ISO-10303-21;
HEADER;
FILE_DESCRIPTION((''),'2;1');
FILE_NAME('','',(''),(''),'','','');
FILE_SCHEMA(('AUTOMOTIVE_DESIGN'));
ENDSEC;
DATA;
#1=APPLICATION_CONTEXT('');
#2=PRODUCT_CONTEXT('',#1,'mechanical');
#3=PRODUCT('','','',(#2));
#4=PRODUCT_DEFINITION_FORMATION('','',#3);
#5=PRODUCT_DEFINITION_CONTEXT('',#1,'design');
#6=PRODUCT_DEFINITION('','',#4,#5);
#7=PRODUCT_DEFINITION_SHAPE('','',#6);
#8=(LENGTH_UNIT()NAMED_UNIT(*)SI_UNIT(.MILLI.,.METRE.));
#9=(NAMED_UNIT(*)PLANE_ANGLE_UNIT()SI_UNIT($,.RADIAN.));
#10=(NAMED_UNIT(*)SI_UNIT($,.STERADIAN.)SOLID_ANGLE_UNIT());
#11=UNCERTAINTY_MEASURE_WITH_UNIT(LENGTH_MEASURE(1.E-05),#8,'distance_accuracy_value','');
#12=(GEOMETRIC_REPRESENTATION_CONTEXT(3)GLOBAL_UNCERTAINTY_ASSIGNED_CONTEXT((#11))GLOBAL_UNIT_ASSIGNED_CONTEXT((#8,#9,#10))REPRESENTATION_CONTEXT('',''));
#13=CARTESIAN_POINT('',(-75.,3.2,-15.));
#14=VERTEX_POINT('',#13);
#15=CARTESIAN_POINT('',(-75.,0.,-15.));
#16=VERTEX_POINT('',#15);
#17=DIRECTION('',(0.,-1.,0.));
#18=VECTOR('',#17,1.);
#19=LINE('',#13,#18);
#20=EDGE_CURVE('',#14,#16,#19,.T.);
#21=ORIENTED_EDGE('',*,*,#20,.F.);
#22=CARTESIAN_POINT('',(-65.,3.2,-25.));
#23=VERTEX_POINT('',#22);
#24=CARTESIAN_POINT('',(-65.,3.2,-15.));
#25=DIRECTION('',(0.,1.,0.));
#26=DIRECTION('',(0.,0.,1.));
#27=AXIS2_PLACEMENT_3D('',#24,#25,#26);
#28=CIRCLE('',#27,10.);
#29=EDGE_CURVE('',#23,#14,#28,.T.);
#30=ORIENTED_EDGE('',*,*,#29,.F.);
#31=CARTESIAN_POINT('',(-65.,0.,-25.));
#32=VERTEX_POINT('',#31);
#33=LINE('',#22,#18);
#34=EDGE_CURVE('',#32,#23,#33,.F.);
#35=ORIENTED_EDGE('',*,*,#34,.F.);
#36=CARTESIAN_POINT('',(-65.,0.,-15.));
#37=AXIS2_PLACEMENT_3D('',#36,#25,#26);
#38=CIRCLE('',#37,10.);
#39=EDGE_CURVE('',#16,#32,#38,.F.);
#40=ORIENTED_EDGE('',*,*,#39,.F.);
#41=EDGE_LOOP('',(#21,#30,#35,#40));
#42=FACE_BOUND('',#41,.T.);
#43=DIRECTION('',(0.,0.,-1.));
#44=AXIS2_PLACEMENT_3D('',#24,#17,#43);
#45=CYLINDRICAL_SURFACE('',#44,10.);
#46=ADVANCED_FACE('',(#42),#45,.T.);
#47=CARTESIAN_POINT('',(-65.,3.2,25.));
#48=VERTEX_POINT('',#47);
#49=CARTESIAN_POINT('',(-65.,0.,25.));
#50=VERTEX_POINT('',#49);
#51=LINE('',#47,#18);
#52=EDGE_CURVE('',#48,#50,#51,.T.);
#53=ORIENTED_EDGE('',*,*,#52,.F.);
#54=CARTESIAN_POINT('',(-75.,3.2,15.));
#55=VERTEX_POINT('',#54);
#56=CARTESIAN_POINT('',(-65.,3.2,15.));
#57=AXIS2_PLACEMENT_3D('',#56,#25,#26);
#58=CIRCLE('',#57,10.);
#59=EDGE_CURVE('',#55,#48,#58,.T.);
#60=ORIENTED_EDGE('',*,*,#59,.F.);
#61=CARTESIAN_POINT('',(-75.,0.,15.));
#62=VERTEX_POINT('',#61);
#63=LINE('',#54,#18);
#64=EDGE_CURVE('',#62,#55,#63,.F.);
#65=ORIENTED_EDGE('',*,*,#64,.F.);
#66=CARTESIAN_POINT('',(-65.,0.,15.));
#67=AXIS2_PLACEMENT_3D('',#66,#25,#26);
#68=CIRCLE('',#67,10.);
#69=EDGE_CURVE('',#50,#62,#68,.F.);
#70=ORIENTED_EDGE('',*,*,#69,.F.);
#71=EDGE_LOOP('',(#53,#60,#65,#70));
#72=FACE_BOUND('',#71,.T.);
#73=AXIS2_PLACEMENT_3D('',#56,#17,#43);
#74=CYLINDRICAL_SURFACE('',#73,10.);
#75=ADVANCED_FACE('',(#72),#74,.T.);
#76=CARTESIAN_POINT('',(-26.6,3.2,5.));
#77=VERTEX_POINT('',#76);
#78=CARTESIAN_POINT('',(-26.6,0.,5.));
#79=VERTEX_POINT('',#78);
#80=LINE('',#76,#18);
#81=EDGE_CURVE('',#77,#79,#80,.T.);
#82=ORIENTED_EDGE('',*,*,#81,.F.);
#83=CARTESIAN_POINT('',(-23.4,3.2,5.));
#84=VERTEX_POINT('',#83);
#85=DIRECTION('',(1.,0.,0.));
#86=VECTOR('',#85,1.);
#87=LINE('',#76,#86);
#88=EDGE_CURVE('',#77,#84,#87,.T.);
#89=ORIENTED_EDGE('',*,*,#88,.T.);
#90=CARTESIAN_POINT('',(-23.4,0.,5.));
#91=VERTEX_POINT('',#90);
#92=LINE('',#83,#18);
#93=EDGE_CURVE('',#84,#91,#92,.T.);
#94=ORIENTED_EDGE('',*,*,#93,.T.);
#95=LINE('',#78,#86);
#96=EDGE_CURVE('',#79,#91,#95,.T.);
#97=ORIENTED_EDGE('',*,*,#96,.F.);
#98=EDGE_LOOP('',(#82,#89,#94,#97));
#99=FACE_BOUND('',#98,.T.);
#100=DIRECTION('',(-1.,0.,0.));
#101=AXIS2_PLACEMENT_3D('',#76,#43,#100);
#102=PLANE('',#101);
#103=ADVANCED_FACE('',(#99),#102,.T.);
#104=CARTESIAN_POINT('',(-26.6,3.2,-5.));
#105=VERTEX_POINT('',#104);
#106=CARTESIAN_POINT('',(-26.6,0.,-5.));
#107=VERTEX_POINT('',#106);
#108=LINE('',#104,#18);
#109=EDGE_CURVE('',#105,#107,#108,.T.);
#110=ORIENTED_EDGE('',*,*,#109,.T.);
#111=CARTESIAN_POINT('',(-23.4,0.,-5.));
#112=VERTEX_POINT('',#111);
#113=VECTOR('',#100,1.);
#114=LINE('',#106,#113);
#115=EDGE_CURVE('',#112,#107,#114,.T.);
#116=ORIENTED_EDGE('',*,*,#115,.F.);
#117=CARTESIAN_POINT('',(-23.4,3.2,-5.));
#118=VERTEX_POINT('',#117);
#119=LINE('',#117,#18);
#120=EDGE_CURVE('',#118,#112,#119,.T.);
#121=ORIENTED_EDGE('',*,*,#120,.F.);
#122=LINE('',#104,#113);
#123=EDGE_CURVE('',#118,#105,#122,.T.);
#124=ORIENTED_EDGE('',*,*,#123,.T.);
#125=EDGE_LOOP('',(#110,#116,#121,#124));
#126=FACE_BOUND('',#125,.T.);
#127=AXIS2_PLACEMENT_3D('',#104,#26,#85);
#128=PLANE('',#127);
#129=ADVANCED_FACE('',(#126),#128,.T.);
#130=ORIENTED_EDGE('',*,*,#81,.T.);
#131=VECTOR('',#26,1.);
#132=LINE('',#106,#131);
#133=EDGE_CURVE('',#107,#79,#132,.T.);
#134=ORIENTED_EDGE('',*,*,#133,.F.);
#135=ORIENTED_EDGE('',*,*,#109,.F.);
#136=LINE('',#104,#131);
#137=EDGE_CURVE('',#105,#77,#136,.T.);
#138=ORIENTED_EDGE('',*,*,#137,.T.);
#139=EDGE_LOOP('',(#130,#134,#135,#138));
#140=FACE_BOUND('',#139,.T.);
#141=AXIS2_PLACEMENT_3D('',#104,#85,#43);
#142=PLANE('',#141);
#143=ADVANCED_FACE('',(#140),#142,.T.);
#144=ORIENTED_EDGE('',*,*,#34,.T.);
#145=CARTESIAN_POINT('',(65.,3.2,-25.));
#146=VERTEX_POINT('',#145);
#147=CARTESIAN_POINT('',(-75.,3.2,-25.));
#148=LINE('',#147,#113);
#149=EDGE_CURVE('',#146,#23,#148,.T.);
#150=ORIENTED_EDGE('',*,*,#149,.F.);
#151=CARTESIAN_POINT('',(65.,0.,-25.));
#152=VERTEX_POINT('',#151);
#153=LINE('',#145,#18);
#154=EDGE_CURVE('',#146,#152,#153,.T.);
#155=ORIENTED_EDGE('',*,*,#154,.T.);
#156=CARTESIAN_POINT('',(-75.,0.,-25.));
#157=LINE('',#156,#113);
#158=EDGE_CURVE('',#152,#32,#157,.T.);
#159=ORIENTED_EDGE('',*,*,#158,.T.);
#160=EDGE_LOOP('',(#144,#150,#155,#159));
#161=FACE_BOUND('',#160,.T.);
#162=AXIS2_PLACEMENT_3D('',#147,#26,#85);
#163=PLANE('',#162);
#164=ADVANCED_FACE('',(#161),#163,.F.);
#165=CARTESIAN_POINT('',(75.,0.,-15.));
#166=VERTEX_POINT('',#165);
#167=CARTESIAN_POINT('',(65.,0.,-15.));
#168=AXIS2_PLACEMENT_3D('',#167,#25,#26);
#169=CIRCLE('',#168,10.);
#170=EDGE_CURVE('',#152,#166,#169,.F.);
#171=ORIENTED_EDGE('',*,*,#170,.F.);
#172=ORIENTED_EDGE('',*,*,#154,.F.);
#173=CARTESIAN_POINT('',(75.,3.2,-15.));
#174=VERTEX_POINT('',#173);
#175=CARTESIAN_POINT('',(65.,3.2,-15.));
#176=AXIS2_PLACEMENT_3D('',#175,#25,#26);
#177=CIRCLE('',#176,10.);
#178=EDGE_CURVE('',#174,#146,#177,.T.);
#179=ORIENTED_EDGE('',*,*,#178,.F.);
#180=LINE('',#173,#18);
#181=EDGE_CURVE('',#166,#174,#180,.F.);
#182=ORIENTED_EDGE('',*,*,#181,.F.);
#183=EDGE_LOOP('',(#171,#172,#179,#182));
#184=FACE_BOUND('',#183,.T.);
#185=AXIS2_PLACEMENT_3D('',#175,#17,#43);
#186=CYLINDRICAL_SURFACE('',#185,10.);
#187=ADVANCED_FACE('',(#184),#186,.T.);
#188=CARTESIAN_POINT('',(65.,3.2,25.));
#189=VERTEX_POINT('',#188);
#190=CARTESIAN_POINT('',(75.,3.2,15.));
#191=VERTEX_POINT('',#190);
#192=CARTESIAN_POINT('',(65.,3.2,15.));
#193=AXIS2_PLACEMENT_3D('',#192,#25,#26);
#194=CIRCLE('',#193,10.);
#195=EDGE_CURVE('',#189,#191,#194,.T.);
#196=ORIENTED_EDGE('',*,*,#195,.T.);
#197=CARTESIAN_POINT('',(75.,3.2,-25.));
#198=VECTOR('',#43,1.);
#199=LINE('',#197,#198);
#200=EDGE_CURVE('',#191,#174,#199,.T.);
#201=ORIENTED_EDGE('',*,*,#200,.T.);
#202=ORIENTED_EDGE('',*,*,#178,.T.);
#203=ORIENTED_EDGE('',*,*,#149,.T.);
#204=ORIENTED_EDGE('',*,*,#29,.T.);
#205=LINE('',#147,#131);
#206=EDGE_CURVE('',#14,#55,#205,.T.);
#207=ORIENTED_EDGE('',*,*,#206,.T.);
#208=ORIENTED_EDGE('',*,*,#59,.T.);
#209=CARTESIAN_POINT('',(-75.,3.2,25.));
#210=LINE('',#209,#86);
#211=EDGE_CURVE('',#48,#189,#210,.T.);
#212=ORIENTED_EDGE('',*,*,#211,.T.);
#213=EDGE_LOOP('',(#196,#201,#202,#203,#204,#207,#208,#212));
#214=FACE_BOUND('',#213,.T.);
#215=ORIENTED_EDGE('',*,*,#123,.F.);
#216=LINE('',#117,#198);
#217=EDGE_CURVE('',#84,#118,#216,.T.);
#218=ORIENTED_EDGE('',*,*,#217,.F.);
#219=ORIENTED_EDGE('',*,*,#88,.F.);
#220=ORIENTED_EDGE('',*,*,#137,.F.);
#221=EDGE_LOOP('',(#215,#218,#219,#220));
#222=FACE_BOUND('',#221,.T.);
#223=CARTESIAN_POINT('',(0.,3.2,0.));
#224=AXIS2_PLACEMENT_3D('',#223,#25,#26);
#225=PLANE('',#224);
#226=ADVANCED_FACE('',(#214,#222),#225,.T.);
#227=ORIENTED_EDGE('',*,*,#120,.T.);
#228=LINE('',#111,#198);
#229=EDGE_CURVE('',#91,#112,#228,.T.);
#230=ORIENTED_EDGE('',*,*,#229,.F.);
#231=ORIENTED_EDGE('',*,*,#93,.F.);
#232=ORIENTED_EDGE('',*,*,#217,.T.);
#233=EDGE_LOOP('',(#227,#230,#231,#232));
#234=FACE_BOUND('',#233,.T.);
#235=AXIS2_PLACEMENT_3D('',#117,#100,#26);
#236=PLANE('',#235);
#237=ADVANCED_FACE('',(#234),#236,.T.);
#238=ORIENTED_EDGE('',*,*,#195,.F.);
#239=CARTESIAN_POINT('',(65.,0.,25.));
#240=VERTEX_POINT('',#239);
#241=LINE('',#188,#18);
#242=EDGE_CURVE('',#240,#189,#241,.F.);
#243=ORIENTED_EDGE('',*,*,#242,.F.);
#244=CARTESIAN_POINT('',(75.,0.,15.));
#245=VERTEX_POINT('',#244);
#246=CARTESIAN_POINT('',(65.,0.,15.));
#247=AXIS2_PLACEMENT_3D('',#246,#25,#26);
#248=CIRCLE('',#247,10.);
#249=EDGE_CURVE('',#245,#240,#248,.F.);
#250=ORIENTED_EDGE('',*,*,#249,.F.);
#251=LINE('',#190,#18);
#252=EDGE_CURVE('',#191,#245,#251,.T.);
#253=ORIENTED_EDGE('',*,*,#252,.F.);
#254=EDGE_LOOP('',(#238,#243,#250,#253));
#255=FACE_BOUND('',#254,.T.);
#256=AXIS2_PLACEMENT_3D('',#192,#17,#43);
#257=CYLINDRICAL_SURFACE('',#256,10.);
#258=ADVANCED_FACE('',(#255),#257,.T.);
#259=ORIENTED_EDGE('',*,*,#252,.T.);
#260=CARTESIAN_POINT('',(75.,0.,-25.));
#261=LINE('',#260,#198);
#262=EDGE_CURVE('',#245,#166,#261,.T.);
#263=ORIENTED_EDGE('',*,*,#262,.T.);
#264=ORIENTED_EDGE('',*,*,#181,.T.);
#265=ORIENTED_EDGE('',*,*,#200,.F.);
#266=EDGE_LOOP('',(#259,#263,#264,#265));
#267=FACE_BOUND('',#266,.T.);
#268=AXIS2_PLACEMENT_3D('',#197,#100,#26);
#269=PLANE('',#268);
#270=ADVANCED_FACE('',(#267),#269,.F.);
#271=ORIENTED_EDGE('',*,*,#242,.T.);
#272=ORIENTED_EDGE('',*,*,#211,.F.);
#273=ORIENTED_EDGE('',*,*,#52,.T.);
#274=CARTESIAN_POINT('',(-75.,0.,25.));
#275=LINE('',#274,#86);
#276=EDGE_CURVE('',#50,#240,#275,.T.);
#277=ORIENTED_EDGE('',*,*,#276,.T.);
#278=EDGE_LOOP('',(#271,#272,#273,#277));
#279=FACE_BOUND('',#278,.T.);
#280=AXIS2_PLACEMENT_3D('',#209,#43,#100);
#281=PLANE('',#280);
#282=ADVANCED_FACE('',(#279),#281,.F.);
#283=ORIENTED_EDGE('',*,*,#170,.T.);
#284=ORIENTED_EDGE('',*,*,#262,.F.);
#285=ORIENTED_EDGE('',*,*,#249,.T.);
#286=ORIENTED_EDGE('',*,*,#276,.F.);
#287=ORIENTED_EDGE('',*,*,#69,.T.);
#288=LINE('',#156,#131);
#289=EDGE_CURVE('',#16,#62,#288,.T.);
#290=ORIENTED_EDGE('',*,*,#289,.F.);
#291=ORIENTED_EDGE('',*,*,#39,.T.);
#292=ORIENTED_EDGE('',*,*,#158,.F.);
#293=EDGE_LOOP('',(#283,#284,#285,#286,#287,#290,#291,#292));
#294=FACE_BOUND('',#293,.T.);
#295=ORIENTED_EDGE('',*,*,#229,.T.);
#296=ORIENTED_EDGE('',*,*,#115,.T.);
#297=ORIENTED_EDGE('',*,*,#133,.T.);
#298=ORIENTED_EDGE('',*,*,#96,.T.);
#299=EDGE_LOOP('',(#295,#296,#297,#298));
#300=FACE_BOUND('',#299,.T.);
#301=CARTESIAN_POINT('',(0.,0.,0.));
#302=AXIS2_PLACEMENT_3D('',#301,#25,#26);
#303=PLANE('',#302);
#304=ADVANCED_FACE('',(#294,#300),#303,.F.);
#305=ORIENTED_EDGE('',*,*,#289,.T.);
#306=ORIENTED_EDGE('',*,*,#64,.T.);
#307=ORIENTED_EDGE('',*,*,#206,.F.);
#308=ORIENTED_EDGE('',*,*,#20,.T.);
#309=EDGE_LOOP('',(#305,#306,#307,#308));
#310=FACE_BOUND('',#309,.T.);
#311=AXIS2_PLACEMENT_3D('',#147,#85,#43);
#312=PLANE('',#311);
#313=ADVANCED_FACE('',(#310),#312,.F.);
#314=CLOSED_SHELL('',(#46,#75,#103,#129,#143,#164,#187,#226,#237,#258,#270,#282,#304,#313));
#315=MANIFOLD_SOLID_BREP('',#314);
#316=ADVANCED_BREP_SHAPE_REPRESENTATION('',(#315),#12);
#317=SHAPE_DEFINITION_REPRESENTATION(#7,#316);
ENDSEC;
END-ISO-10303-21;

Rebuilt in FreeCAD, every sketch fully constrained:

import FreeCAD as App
import Part
import Sketcher
from FreeCAD import Vector


def edges_at(feature, points):
    """Names of the edges that pass closest to the given points."""
    edges = feature.Shape.Edges
    near = lambda p: min(range(len(edges)), key=lambda i: edges[i].distToShape(Part.Vertex(*p))[0])
    return sorted({f"Edge{near(p) + 1}" for p in points})

doc = App.newDocument("Part")
body = doc.addObject("PartDesign::Body", "Body")

# Sketch on XZ plane
sketch1 = doc.addObject("Sketcher::SketchObject", "Sketch")
body.addObject(sketch1)
sketch1.AttachmentSupport = (doc.XZ_Plane, [""])
sketch1.MapMode = "FlatFace"
sketch1.addGeometry([
    Part.LineSegment(Vector(-75, -25, 0), Vector(-75, 25, 0)),  # 0
    Part.LineSegment(Vector(-75, 25, 0), Vector(75, 25, 0)),  # 1
    Part.LineSegment(Vector(75, 25, 0), Vector(75, -25, 0)),  # 2
    Part.LineSegment(Vector(75, -25, 0), Vector(-75, -25, 0)),  # 3
    Part.LineSegment(Vector(-23.4, 5, 0), Vector(-26.6, 5, 0)),  # 4
    Part.LineSegment(Vector(-26.6, 5, 0), Vector(-26.6, -5, 0)),  # 5
    Part.LineSegment(Vector(-26.6, -5, 0), Vector(-23.4, -5, 0)),  # 6
    Part.LineSegment(Vector(-23.4, -5, 0), Vector(-23.4, 5, 0)),  # 7
], False)
sketch1.addConstraint([
    Sketcher.Constraint("Coincident", 0, 2, 1, 1),
    Sketcher.Constraint("Coincident", 1, 2, 2, 1),
    Sketcher.Constraint("Coincident", 2, 2, 3, 1),
    Sketcher.Constraint("Coincident", 3, 2, 0, 1),
    Sketcher.Constraint("Coincident", 4, 2, 5, 1),
    Sketcher.Constraint("Coincident", 5, 2, 6, 1),
    Sketcher.Constraint("Coincident", 6, 2, 7, 1),
    Sketcher.Constraint("Coincident", 7, 2, 4, 1),
    Sketcher.Constraint("Vertical", 0),
    Sketcher.Constraint("Horizontal", 1),
    Sketcher.Constraint("Vertical", 2),
    Sketcher.Constraint("Horizontal", 3),
    Sketcher.Constraint("Horizontal", 4),
    Sketcher.Constraint("Vertical", 5),
    Sketcher.Constraint("Horizontal", 6),
    Sketcher.Constraint("Vertical", 7),
    Sketcher.Constraint("Symmetric", 0, 2, 2, 2, -1, 1),
    Sketcher.Constraint("DistanceX", 1, 1, 1, 2, 150.0),
    Sketcher.Constraint("DistanceY", 0, 1, 0, 2, 50.0),
    Sketcher.Constraint("DistanceY", 5, 2, 5, 1, 10.0),
    Sketcher.Constraint("DistanceX", 4, 2, 4, 1, 3.2),
    Sketcher.Constraint("DistanceY", -1, 1, 4, 2, 5.0),
    Sketcher.Constraint("DistanceX", 4, 2, -1, 1, 26.6),
])
pad1 = doc.addObject("PartDesign::Pad", "Pad")
body.addObject(pad1)
pad1.Profile = sketch1
pad1.Length = 3.2
pad1.Reversed = True
doc.recompute()

fillet = doc.addObject("PartDesign::Fillet", "Fillet")
body.addObject(fillet)
fillet.Base = (pad1, edges_at(pad1, [
    (75, 1.6, 25),
    (-75, 1.6, 25),
    (-75, 1.6, -25),
    (75, 1.6, -25),
]))
fillet.Radius = 10

doc.recompute()
